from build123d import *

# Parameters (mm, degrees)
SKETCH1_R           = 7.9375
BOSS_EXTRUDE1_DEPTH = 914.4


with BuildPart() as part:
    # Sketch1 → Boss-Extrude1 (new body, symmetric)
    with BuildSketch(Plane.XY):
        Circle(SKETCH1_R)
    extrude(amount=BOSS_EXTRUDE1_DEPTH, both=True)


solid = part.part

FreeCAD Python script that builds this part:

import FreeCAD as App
import Part
import Sketcher
from FreeCAD import Vector
Q = App.Units.Quantity

doc = App.newDocument("Part")
params = doc.addObject("Spreadsheet::Sheet", "Params")
for row, (alias, value) in enumerate([
    ("sketch1_diameter", "0.625 in"),
    ("pad1_length", "72 in"),
], start=1):
    params.set(f"A{row}", alias)
    params.set(f"B{row}", "=" + value)
    params.setAlias(f"B{row}", alias)

body = doc.addObject("PartDesign::Body", "Body")

# Sketch on XY plane
sketch1 = body.newObject("Sketcher::SketchObject", "Sketch")
sketch1.AttachmentSupport = (doc.getObject("XY_Plane"), [""])
sketch1.MapMode = "FlatFace"
sketch1.addGeometry(Part.Circle(Vector(0, 0, 0), Vector(0, 0, 1), 8), False)
sketch1.addConstraint([
    Sketcher.Constraint("Coincident", 0, 3, -1, 1),
    Sketcher.Constraint("Diameter", 0, Q("0.625 in")),
])
sketch1.setExpression("Constraints[1]", "Params.sketch1_diameter")
pad1 = body.newObject("PartDesign::Pad", "Pad")
pad1.Profile = sketch1
pad1.setExpression("Length", "Params.pad1_length")
pad1.Midplane = True

doc.recompute()
